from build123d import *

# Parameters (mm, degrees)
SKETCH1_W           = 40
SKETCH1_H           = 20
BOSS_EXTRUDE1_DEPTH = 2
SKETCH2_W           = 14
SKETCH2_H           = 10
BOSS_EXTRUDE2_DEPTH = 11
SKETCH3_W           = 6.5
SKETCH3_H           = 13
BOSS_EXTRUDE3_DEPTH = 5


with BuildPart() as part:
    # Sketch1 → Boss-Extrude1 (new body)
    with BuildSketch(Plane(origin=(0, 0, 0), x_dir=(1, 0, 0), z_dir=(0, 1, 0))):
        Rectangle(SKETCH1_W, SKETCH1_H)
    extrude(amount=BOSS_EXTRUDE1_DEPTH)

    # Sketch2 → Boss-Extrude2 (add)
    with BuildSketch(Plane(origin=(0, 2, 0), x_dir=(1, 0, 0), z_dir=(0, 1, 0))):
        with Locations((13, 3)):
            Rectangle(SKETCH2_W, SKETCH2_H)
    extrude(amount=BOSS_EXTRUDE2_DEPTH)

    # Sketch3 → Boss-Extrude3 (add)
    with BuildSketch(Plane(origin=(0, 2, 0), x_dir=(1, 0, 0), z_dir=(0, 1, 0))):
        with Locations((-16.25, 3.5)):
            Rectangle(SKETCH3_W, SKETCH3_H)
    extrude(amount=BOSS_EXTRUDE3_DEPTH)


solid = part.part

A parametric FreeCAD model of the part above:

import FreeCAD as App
import Part
import Sketcher
Q = App.Units.Quantity

doc = App.newDocument("Part")
body = doc.addObject("PartDesign::Body", "Body")

sketch1 = body.newObject("Sketcher::SketchObject", "Sketch")
sketch1.AttachmentSupport = (doc.getObject("XZ_Plane"), [""])
sketch1.MapMode = "FlatFace"
sketch1.addGeometry(Part.LineSegment(App.Vector(-20, -10, 0), App.Vector(-20, 10, 0)), False)
sketch1.addGeometry(Part.LineSegment(App.Vector(-20, 10, 0), App.Vector(20, 10, 0)), False)
sketch1.addGeometry(Part.LineSegment(App.Vector(20, 10, 0), App.Vector(20, -10, 0)), False)
sketch1.addGeometry(Part.LineSegment(App.Vector(20, -10, 0), App.Vector(-20, -10, 0)), False)
sketch1.addConstraint(Sketcher.Constraint("Coincident", 0, 2, 1, 1))
sketch1.addConstraint(Sketcher.Constraint("Coincident", 1, 2, 2, 1))
sketch1.addConstraint(Sketcher.Constraint("Coincident", 2, 2, 3, 1))
sketch1.addConstraint(Sketcher.Constraint("Coincident", 3, 2, 0, 1))
sketch1.addConstraint(Sketcher.Constraint("Vertical", 0))
sketch1.addConstraint(Sketcher.Constraint("Horizontal", 1))
sketch1.addConstraint(Sketcher.Constraint("Vertical", 2))
sketch1.addConstraint(Sketcher.Constraint("Horizontal", 3))
sketch1.addConstraint(Sketcher.Constraint("Symmetric", 0, 2, 2, 2, -1, 1))
sketch1.addConstraint(Sketcher.Constraint("DistanceX", 1, 1, 1, 2, Q("40 mm")))
sketch1.addConstraint(Sketcher.Constraint("DistanceY", 0, 1, 0, 2, Q("20 mm")))
pad1 = body.newObject("PartDesign::Pad", "Pad")
pad1.Profile = sketch1
pad1.Length = 2
pad1.Reversed = True

sketch2 = body.newObject("Sketcher::SketchObject", "Sketch001")
sketch2.AttachmentSupport = (doc.getObject("XZ_Plane"), [""])
sketch2.MapMode = "FlatFace"
sketch2.AttachmentOffset = App.Placement(App.Vector(0, 0, -2), App.Rotation())
sketch2.addGeometry(Part.LineSegment(App.Vector(6, -8, 0), App.Vector(6, 2, 0)), False)
sketch2.addGeometry(Part.LineSegment(App.Vector(6, 2, 0), App.Vector(20, 2, 0)), False)
sketch2.addGeometry(Part.LineSegment(App.Vector(20, 2, 0), App.Vector(20, -8, 0)), False)
sketch2.addGeometry(Part.LineSegment(App.Vector(20, -8, 0), App.Vector(6, -8, 0)), False)
sketch2.addConstraint(Sketcher.Constraint("Coincident", 0, 2, 1, 1))
sketch2.addConstraint(Sketcher.Constraint("Coincident", 1, 2, 2, 1))
sketch2.addConstraint(Sketcher.Constraint("Coincident", 2, 2, 3, 1))
sketch2.addConstraint(Sketcher.Constraint("Coincident", 3, 2, 0, 1))
sketch2.addConstraint(Sketcher.Constraint("Vertical", 0))
sketch2.addConstraint(Sketcher.Constraint("Horizontal", 1))
sketch2.addConstraint(Sketcher.Constraint("Vertical", 2))
sketch2.addConstraint(Sketcher.Constraint("Horizontal", 3))
sketch2.addConstraint(Sketcher.Constraint("DistanceX", 1, 1, 1, 2, Q("14 mm")))
sketch2.addConstraint(Sketcher.Constraint("DistanceY", 0, 1, 0, 2, Q("10 mm")))
sketch2.addConstraint(Sketcher.Constraint("DistanceX", -1, 1, 0, 2, Q("6 mm")))
sketch2.addConstraint(Sketcher.Constraint("DistanceY", -1, 1, 0, 2, Q("2 mm")))
pad2 = body.newObject("PartDesign::Pad", "Pad001")
pad2.Profile = sketch2
pad2.Length = 11
pad2.Reversed = True

sketch3 = body.newObject("Sketcher::SketchObject", "Sketch002")
sketch3.AttachmentSupport = (doc.getObject("XZ_Plane"), [""])
sketch3.MapMode = "FlatFace"
sketch3.AttachmentOffset = App.Placement(App.Vector(0, 0, -2), App.Rotation())
sketch3.addGeometry(Part.LineSegment(App.Vector(-19.5, -10, 0), App.Vector(-19.5, 3, 0)), False)
sketch3.addGeometry(Part.LineSegment(App.Vector(-19.5, 3, 0), App.Vector(-13, 3, 0)), False)
sketch3.addGeometry(Part.LineSegment(App.Vector(-13, 3, 0), App.Vector(-13, -10, 0)), False)
sketch3.addGeometry(Part.LineSegment(App.Vector(-13, -10, 0), App.Vector(-19.5, -10, 0)), False)
sketch3.addConstraint(Sketcher.Constraint("Coincident", 0, 2, 1, 1))
sketch3.addConstraint(Sketcher.Constraint("Coincident", 1, 2, 2, 1))
sketch3.addConstraint(Sketcher.Constraint("Coincident", 2, 2, 3, 1))
sketch3.addConstraint(Sketcher.Constraint("Coincident", 3, 2, 0, 1))
sketch3.addConstraint(Sketcher.Constraint("Vertical", 0))
sketch3.addConstraint(Sketcher.Constraint("Horizontal", 1))
sketch3.addConstraint(Sketcher.Constraint("Vertical", 2))
sketch3.addConstraint(Sketcher.Constraint("Horizontal", 3))
sketch3.addConstraint(Sketcher.Constraint("DistanceY", 0, 1, 0, 2, Q("13 mm")))
sketch3.addConstraint(Sketcher.Constraint("DistanceX", 1, 1, 1, 2, Q("6.5 mm")))
sketch3.addConstraint(Sketcher.Constraint("DistanceY", -1, 1, 0, 2, Q("3 mm")))
sketch3.addConstraint(Sketcher.Constraint("DistanceX", 1, 2, -1, 1, Q("13 mm")))
pad3 = body.newObject("PartDesign::Pad", "Pad002")
pad3.Profile = sketch3
pad3.Length = 5
pad3.Reversed = True

doc.recompute()
